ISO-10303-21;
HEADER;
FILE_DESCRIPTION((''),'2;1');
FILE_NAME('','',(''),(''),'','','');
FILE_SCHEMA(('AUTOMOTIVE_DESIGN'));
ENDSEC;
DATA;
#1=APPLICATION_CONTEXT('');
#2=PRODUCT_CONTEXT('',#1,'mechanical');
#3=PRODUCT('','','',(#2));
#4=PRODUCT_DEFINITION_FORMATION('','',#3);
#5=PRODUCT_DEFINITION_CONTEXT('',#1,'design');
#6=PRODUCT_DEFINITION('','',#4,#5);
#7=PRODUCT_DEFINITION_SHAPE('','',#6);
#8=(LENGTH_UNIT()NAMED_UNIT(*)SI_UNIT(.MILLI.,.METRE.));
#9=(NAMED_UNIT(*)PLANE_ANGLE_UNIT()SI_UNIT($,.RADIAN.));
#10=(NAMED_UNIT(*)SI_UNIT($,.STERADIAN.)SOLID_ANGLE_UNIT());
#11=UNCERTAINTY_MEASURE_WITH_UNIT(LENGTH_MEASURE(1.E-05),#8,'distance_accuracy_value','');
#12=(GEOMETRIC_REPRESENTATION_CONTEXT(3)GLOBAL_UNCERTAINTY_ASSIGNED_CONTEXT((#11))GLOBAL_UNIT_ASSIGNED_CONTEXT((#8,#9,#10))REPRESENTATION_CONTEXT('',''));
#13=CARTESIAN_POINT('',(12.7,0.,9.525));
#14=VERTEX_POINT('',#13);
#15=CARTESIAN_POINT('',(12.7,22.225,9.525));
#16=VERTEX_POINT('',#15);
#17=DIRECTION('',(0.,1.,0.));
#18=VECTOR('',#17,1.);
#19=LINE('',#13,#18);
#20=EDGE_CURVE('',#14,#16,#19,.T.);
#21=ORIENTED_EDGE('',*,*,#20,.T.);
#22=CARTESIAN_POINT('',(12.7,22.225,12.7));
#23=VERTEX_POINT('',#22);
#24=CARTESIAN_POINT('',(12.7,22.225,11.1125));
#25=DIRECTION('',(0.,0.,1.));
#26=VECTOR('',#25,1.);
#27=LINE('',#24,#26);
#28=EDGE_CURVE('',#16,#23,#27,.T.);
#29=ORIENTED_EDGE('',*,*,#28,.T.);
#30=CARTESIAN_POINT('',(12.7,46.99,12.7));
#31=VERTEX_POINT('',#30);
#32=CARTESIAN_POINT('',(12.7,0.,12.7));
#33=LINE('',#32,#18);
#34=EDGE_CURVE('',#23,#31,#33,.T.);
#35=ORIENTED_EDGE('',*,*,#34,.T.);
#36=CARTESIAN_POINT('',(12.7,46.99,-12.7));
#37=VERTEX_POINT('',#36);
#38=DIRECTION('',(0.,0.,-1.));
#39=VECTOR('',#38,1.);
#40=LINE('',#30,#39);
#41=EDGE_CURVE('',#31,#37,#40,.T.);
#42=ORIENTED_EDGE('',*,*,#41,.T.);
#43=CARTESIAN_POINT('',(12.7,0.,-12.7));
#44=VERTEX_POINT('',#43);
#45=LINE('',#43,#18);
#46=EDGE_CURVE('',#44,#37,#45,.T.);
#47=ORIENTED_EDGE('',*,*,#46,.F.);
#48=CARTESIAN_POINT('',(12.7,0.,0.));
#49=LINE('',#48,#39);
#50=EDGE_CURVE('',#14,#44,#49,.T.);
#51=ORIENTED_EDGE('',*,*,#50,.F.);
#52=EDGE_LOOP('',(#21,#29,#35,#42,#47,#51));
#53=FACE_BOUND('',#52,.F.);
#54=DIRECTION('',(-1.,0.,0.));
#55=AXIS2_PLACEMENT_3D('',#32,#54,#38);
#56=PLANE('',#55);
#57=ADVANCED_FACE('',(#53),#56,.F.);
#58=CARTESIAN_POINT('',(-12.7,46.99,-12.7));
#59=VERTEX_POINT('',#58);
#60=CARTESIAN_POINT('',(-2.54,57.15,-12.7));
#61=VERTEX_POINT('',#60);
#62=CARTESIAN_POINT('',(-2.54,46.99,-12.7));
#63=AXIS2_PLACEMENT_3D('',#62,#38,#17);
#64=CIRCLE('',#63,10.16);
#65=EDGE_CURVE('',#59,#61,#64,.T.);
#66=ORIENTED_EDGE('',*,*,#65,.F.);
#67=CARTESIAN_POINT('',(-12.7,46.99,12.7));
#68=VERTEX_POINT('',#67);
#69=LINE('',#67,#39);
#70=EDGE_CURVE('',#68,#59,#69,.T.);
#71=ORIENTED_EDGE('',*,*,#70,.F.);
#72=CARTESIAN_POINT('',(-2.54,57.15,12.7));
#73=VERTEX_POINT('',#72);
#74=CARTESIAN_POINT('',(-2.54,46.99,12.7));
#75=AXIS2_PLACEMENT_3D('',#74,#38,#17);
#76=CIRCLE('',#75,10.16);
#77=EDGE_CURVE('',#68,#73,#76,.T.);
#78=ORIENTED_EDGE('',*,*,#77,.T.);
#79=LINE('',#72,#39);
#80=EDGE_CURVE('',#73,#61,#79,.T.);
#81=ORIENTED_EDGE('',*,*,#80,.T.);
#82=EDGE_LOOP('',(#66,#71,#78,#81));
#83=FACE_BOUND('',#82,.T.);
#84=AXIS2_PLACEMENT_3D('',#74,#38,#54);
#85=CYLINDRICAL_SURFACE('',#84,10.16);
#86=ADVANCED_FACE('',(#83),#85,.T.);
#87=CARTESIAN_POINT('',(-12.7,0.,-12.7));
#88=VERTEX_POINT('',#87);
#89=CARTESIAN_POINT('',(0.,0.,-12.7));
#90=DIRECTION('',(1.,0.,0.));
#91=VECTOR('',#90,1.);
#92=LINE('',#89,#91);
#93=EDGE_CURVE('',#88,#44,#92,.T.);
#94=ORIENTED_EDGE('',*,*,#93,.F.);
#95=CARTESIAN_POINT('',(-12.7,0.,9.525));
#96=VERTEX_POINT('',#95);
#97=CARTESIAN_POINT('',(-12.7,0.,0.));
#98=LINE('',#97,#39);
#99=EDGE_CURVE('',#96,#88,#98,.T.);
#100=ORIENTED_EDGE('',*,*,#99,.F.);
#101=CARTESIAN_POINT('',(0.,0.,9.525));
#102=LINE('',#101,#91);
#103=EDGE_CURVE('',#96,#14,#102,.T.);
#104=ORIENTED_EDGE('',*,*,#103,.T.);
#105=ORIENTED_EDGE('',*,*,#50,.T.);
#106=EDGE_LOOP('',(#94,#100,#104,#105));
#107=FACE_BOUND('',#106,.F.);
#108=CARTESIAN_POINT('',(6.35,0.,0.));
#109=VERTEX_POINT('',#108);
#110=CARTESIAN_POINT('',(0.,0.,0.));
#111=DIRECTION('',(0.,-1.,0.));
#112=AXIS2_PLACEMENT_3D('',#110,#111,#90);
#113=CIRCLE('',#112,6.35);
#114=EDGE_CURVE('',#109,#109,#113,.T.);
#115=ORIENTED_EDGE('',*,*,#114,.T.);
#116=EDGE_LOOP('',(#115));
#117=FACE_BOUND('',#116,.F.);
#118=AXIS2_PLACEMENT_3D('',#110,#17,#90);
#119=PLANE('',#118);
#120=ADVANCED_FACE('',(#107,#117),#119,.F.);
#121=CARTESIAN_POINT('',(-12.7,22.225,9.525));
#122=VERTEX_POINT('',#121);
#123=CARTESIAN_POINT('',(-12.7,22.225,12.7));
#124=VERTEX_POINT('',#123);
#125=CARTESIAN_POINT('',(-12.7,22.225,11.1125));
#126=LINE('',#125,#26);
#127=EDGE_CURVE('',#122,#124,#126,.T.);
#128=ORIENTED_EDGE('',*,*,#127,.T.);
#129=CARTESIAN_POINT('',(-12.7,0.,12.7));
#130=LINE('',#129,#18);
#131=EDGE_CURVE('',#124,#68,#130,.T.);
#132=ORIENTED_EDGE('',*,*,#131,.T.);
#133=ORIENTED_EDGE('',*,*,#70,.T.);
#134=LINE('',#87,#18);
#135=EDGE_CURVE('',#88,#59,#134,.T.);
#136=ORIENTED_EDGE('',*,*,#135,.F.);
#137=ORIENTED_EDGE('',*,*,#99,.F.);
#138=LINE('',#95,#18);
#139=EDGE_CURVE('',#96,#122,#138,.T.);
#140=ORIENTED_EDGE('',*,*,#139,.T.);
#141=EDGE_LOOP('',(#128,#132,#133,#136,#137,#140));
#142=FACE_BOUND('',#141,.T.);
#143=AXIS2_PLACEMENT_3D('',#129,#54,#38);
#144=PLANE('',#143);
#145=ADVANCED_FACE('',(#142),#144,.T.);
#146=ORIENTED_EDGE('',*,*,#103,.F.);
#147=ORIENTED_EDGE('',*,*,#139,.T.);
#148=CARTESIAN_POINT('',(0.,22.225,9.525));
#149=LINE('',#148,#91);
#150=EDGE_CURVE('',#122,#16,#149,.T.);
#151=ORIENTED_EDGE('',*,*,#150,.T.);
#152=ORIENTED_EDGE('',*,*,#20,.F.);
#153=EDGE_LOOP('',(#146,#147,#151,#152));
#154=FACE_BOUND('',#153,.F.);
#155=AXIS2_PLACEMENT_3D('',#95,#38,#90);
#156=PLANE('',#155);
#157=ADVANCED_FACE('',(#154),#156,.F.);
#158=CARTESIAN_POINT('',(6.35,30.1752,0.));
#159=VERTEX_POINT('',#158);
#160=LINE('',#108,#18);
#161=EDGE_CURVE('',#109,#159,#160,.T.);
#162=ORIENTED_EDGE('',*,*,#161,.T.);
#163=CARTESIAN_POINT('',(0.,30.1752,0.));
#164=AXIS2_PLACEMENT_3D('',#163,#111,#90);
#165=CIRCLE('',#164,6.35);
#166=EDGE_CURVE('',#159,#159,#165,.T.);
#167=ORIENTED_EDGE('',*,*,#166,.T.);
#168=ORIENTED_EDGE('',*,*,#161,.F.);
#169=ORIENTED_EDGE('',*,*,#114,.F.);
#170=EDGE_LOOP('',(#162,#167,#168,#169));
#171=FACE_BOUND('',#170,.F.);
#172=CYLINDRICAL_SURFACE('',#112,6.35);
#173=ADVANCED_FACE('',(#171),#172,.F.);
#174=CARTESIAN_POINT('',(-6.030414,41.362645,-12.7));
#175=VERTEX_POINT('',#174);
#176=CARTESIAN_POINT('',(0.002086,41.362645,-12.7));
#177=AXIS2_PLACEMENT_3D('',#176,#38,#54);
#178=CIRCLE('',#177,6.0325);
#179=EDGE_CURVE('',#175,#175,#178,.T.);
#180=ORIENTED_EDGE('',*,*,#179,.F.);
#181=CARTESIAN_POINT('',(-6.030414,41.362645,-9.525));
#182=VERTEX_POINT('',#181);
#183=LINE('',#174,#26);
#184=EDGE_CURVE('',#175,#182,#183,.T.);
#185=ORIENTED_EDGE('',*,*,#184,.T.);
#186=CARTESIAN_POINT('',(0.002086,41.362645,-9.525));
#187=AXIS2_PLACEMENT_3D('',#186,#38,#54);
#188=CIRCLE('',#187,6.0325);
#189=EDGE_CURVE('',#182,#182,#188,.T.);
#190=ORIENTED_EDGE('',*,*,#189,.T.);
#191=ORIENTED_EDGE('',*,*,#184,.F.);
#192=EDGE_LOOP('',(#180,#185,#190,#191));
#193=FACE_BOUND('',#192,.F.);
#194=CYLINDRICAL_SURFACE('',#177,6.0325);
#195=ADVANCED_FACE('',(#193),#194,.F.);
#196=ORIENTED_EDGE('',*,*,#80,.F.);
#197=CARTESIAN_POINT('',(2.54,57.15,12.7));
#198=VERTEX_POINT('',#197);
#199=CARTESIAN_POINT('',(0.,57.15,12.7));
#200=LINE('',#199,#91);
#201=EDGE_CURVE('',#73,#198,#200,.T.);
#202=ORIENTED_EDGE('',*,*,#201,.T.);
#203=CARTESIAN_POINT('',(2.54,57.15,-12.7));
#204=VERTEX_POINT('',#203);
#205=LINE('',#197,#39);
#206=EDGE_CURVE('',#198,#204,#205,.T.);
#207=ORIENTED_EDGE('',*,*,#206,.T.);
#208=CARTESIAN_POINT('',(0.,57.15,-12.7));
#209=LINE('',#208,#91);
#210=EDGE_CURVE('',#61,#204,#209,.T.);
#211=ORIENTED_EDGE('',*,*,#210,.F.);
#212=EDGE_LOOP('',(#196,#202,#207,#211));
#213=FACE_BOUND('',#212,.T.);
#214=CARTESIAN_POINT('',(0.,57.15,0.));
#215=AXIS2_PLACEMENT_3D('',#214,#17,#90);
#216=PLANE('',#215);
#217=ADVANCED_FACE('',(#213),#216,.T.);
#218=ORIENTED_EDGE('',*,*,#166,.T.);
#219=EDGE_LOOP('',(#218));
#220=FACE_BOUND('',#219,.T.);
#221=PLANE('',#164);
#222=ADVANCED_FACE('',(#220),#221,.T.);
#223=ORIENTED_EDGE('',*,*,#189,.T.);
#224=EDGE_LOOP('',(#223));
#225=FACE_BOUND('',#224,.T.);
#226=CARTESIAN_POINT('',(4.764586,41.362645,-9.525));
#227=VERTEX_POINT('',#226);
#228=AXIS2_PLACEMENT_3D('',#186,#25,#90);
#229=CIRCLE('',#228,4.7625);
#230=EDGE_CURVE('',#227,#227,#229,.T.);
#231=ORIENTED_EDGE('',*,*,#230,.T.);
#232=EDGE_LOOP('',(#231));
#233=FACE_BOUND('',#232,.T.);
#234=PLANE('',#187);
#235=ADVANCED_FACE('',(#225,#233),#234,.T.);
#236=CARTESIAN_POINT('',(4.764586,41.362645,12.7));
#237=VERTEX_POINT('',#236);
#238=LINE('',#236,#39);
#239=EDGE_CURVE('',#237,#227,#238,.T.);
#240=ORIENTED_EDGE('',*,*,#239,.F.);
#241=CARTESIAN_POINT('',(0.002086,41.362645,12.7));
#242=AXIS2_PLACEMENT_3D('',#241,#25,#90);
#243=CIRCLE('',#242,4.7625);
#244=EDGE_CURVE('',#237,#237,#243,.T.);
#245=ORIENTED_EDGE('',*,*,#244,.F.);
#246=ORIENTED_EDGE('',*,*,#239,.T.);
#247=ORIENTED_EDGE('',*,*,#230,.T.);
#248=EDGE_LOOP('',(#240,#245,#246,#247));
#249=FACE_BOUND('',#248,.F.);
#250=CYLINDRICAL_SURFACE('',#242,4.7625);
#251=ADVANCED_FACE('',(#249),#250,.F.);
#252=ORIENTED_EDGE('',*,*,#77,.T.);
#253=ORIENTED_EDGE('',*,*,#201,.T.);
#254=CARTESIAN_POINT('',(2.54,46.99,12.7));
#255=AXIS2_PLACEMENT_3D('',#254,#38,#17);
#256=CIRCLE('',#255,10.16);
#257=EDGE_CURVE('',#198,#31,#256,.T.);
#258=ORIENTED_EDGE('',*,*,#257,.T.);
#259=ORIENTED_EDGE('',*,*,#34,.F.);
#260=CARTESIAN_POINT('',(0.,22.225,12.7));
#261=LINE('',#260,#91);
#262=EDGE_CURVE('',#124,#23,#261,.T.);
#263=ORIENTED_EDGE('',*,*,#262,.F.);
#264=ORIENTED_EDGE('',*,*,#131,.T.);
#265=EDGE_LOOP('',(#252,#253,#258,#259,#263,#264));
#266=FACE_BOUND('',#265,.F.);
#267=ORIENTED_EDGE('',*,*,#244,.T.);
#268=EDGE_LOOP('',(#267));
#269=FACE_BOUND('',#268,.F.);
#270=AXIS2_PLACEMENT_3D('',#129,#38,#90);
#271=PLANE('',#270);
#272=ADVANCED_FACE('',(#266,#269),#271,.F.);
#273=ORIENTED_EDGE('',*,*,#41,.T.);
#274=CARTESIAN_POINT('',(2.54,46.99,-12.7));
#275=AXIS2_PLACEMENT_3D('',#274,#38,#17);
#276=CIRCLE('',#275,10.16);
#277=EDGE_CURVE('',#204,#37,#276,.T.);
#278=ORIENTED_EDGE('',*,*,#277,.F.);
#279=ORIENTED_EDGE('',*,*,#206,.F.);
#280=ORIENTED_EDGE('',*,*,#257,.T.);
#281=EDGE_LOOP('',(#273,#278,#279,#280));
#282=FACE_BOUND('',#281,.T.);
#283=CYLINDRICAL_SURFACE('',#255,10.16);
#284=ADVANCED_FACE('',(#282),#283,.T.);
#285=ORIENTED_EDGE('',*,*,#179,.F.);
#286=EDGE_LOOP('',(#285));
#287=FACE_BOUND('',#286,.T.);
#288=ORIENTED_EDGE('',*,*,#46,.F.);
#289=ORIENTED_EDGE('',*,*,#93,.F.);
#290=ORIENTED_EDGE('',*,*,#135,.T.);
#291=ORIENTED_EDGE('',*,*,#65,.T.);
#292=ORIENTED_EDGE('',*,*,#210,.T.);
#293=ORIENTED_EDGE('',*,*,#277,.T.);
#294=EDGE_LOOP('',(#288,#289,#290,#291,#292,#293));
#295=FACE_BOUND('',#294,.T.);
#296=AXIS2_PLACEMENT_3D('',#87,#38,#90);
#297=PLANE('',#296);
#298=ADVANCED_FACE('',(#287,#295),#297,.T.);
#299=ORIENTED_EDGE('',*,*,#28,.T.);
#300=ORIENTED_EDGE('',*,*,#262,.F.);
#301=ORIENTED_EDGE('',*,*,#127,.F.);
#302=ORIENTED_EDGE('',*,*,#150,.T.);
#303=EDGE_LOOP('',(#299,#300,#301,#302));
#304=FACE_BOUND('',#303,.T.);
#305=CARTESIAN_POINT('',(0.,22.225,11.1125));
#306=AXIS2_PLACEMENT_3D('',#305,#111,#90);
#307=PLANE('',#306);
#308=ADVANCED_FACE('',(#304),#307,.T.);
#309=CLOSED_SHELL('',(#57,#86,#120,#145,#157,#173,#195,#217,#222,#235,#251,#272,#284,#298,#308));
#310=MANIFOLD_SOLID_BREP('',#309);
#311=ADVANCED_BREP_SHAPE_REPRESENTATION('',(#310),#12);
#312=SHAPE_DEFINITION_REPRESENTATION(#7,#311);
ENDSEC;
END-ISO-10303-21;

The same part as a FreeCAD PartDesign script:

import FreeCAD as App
import Part
import Sketcher
Q = App.Units.Quantity


def edges_at(feature, points):
    """Names of the edges that pass closest to the given points."""
    edges = feature.Shape.Edges
    near = lambda p: min(range(len(edges)), key=lambda i: edges[i].distToShape(Part.Vertex(*p))[0])
    return sorted({f"Edge{near(p) + 1}" for p in points})


def add_polygon(sketch, points):
    """Adds a closed chain of lines whose ends are joined by coincident constraints."""
    first, n = sketch.GeometryCount, len(points)
    for a, b in zip(points, points[1:] + points[:1]):
        sketch.addGeometry(Part.LineSegment(App.Vector(*a, 0), App.Vector(*b, 0)), False)
    for i in range(n):
        sketch.addConstraint(Sketcher.Constraint("Coincident", first + i, 2, first + (i + 1) % n, 1))

doc = App.newDocument("Part")
body = doc.addObject("PartDesign::Body", "Body")

sketch1 = body.newObject("Sketcher::SketchObject", "Sketch")
sketch1.AttachmentSupport = (doc.getObject("XZ_Plane"), [""])
sketch1.MapMode = "FlatFace"
add_polygon(sketch1, [(-13, -13), (-13, 13), (13, 13), (13, -13)])
sketch1.addConstraint(Sketcher.Constraint("Vertical", 0))
sketch1.addConstraint(Sketcher.Constraint("Horizontal", 1))
sketch1.addConstraint(Sketcher.Constraint("Vertical", 2))
sketch1.addConstraint(Sketcher.Constraint("Horizontal", 3))
sketch1.addConstraint(Sketcher.Constraint("Symmetric", 0, 2, 2, 2, -1, 1))
sketch1.addConstraint(Sketcher.Constraint("Equal", 3, 0))
sketch1.addConstraint(Sketcher.Constraint("DistanceX", 1, 1, 1, 2, Q("1 in")))
pad1 = body.newObject("PartDesign::Pad", "Pad")
pad1.Profile = sketch1
pad1.Length = Q("2.25 in")
pad1.Reversed = True

sketch2 = body.newObject("Sketcher::SketchObject", "Sketch001")
sketch2.AttachmentSupport = (doc.getObject("XZ_Plane"), [""])
sketch2.MapMode = "FlatFace"
add_polygon(sketch2, [(-12.7, 12.7), (-12.7, 9.5), (12.7, 9.5), (12.7, 12.7)])
sketch2.addConstraint(Sketcher.Constraint("Vertical", 0))
sketch2.addConstraint(Sketcher.Constraint("Horizontal", 1))
sketch2.addConstraint(Sketcher.Constraint("Vertical", 2))
sketch2.addConstraint(Sketcher.Constraint("Horizontal", 3))
sketch2.addConstraint(Sketcher.Constraint("DistanceX", 1, 1, 1, 2, Q("1 in")))
sketch2.addConstraint(Sketcher.Constraint("DistanceX", 0, 2, -1, 1, Q("0.5 in")))
sketch2.addConstraint(Sketcher.Constraint("DistanceY", -1, 1, 2, 2, Q("0.5 in")))
sketch2.addConstraint(Sketcher.Constraint("DistanceY", 0, 2, 0, 1, Q("0.125 in")))
pocket1 = body.newObject("PartDesign::Pocket", "Pocket")
pocket1.Profile = sketch2
pocket1.Length = Q("0.875 in")

sketch3 = body.newObject("Sketcher::SketchObject", "Sketch002")
sketch3.AttachmentSupport = (doc.getObject("XY_Plane"), [""])
sketch3.MapMode = "FlatFace"
sketch3.AttachmentOffset = App.Placement(App.Vector(0, 0, 0.5 * 25.4), App.Rotation())
sketch3.addGeometry(Part.Circle(App.Vector(0, 41.4, 0), App.Vector(0, 0, 1), 4.8), False)
sketch3.addConstraint(Sketcher.Constraint("Diameter", 0, Q("0.375 in")))
sketch3.addConstraint(Sketcher.Constraint("DistanceX", -1, 1, 0, 3, Q("0.002086 mm")))
sketch3.addConstraint(Sketcher.Constraint("DistanceY", -1, 1, 0, 3, Q("41.362645 mm")))
pocket2 = body.newObject("PartDesign::Pocket", "Pocket001")
pocket2.Profile = sketch3
pocket2.Length = Q("1 in")

sketch4 = body.newObject("Sketcher::SketchObject", "Sketch003")
sketch4.AttachmentSupport = (doc.getObject("XY_Plane"), [""])
sketch4.MapMode = "FlatFace"
sketch4.AttachmentOffset = App.Placement(App.Vector(0, 0, -0.5 * 25.4), App.Rotation())
sketch4.addGeometry(Part.Circle(App.Vector(0, 41, 0), App.Vector(0, 0, 1), 6), False)
sketch4.addConstraint(Sketcher.Constraint("Diameter", 0, Q("0.475 in")))
sketch4.addConstraint(Sketcher.Constraint("DistanceX", -1, 1, 0, 3, Q("0.002086 mm")))
sketch4.addConstraint(Sketcher.Constraint("DistanceY", -1, 1, 0, 3, Q("41.362645 mm")))
pocket3 = body.newObject("PartDesign::Pocket", "Pocket002")
pocket3.Profile = sketch4
pocket3.Length = Q("0.125 in")
pocket3.Reversed = True

sketch5 = body.newObject("Sketcher::SketchObject", "Sketch004")
sketch5.AttachmentSupport = (doc.getObject("XZ_Plane"), [""])
sketch5.MapMode = "FlatFace"
sketch5.addGeometry(Part.Circle(App.Vector(0, 0, 0), App.Vector(0, 0, 1), 6), False)
sketch5.addConstraint(Sketcher.Constraint("Coincident", 0, 3, -1, 1))
sketch5.addConstraint(Sketcher.Constraint("Diameter", 0, Q("0.5 in")))
pocket4 = body.newObject("PartDesign::Pocket", "Pocket003")
pocket4.Profile = sketch5
pocket4.Length = Q("1.188 in")
doc.recompute()

fillet = body.newObject("PartDesign::Fillet", "Fillet")
fillet.Base = (pocket4, edges_at(pocket4, [(-12.7, 57.15, 0), (12.7, 57.15, 0)]))
fillet.Radius = Q("0.4 in")

doc.recompute()
